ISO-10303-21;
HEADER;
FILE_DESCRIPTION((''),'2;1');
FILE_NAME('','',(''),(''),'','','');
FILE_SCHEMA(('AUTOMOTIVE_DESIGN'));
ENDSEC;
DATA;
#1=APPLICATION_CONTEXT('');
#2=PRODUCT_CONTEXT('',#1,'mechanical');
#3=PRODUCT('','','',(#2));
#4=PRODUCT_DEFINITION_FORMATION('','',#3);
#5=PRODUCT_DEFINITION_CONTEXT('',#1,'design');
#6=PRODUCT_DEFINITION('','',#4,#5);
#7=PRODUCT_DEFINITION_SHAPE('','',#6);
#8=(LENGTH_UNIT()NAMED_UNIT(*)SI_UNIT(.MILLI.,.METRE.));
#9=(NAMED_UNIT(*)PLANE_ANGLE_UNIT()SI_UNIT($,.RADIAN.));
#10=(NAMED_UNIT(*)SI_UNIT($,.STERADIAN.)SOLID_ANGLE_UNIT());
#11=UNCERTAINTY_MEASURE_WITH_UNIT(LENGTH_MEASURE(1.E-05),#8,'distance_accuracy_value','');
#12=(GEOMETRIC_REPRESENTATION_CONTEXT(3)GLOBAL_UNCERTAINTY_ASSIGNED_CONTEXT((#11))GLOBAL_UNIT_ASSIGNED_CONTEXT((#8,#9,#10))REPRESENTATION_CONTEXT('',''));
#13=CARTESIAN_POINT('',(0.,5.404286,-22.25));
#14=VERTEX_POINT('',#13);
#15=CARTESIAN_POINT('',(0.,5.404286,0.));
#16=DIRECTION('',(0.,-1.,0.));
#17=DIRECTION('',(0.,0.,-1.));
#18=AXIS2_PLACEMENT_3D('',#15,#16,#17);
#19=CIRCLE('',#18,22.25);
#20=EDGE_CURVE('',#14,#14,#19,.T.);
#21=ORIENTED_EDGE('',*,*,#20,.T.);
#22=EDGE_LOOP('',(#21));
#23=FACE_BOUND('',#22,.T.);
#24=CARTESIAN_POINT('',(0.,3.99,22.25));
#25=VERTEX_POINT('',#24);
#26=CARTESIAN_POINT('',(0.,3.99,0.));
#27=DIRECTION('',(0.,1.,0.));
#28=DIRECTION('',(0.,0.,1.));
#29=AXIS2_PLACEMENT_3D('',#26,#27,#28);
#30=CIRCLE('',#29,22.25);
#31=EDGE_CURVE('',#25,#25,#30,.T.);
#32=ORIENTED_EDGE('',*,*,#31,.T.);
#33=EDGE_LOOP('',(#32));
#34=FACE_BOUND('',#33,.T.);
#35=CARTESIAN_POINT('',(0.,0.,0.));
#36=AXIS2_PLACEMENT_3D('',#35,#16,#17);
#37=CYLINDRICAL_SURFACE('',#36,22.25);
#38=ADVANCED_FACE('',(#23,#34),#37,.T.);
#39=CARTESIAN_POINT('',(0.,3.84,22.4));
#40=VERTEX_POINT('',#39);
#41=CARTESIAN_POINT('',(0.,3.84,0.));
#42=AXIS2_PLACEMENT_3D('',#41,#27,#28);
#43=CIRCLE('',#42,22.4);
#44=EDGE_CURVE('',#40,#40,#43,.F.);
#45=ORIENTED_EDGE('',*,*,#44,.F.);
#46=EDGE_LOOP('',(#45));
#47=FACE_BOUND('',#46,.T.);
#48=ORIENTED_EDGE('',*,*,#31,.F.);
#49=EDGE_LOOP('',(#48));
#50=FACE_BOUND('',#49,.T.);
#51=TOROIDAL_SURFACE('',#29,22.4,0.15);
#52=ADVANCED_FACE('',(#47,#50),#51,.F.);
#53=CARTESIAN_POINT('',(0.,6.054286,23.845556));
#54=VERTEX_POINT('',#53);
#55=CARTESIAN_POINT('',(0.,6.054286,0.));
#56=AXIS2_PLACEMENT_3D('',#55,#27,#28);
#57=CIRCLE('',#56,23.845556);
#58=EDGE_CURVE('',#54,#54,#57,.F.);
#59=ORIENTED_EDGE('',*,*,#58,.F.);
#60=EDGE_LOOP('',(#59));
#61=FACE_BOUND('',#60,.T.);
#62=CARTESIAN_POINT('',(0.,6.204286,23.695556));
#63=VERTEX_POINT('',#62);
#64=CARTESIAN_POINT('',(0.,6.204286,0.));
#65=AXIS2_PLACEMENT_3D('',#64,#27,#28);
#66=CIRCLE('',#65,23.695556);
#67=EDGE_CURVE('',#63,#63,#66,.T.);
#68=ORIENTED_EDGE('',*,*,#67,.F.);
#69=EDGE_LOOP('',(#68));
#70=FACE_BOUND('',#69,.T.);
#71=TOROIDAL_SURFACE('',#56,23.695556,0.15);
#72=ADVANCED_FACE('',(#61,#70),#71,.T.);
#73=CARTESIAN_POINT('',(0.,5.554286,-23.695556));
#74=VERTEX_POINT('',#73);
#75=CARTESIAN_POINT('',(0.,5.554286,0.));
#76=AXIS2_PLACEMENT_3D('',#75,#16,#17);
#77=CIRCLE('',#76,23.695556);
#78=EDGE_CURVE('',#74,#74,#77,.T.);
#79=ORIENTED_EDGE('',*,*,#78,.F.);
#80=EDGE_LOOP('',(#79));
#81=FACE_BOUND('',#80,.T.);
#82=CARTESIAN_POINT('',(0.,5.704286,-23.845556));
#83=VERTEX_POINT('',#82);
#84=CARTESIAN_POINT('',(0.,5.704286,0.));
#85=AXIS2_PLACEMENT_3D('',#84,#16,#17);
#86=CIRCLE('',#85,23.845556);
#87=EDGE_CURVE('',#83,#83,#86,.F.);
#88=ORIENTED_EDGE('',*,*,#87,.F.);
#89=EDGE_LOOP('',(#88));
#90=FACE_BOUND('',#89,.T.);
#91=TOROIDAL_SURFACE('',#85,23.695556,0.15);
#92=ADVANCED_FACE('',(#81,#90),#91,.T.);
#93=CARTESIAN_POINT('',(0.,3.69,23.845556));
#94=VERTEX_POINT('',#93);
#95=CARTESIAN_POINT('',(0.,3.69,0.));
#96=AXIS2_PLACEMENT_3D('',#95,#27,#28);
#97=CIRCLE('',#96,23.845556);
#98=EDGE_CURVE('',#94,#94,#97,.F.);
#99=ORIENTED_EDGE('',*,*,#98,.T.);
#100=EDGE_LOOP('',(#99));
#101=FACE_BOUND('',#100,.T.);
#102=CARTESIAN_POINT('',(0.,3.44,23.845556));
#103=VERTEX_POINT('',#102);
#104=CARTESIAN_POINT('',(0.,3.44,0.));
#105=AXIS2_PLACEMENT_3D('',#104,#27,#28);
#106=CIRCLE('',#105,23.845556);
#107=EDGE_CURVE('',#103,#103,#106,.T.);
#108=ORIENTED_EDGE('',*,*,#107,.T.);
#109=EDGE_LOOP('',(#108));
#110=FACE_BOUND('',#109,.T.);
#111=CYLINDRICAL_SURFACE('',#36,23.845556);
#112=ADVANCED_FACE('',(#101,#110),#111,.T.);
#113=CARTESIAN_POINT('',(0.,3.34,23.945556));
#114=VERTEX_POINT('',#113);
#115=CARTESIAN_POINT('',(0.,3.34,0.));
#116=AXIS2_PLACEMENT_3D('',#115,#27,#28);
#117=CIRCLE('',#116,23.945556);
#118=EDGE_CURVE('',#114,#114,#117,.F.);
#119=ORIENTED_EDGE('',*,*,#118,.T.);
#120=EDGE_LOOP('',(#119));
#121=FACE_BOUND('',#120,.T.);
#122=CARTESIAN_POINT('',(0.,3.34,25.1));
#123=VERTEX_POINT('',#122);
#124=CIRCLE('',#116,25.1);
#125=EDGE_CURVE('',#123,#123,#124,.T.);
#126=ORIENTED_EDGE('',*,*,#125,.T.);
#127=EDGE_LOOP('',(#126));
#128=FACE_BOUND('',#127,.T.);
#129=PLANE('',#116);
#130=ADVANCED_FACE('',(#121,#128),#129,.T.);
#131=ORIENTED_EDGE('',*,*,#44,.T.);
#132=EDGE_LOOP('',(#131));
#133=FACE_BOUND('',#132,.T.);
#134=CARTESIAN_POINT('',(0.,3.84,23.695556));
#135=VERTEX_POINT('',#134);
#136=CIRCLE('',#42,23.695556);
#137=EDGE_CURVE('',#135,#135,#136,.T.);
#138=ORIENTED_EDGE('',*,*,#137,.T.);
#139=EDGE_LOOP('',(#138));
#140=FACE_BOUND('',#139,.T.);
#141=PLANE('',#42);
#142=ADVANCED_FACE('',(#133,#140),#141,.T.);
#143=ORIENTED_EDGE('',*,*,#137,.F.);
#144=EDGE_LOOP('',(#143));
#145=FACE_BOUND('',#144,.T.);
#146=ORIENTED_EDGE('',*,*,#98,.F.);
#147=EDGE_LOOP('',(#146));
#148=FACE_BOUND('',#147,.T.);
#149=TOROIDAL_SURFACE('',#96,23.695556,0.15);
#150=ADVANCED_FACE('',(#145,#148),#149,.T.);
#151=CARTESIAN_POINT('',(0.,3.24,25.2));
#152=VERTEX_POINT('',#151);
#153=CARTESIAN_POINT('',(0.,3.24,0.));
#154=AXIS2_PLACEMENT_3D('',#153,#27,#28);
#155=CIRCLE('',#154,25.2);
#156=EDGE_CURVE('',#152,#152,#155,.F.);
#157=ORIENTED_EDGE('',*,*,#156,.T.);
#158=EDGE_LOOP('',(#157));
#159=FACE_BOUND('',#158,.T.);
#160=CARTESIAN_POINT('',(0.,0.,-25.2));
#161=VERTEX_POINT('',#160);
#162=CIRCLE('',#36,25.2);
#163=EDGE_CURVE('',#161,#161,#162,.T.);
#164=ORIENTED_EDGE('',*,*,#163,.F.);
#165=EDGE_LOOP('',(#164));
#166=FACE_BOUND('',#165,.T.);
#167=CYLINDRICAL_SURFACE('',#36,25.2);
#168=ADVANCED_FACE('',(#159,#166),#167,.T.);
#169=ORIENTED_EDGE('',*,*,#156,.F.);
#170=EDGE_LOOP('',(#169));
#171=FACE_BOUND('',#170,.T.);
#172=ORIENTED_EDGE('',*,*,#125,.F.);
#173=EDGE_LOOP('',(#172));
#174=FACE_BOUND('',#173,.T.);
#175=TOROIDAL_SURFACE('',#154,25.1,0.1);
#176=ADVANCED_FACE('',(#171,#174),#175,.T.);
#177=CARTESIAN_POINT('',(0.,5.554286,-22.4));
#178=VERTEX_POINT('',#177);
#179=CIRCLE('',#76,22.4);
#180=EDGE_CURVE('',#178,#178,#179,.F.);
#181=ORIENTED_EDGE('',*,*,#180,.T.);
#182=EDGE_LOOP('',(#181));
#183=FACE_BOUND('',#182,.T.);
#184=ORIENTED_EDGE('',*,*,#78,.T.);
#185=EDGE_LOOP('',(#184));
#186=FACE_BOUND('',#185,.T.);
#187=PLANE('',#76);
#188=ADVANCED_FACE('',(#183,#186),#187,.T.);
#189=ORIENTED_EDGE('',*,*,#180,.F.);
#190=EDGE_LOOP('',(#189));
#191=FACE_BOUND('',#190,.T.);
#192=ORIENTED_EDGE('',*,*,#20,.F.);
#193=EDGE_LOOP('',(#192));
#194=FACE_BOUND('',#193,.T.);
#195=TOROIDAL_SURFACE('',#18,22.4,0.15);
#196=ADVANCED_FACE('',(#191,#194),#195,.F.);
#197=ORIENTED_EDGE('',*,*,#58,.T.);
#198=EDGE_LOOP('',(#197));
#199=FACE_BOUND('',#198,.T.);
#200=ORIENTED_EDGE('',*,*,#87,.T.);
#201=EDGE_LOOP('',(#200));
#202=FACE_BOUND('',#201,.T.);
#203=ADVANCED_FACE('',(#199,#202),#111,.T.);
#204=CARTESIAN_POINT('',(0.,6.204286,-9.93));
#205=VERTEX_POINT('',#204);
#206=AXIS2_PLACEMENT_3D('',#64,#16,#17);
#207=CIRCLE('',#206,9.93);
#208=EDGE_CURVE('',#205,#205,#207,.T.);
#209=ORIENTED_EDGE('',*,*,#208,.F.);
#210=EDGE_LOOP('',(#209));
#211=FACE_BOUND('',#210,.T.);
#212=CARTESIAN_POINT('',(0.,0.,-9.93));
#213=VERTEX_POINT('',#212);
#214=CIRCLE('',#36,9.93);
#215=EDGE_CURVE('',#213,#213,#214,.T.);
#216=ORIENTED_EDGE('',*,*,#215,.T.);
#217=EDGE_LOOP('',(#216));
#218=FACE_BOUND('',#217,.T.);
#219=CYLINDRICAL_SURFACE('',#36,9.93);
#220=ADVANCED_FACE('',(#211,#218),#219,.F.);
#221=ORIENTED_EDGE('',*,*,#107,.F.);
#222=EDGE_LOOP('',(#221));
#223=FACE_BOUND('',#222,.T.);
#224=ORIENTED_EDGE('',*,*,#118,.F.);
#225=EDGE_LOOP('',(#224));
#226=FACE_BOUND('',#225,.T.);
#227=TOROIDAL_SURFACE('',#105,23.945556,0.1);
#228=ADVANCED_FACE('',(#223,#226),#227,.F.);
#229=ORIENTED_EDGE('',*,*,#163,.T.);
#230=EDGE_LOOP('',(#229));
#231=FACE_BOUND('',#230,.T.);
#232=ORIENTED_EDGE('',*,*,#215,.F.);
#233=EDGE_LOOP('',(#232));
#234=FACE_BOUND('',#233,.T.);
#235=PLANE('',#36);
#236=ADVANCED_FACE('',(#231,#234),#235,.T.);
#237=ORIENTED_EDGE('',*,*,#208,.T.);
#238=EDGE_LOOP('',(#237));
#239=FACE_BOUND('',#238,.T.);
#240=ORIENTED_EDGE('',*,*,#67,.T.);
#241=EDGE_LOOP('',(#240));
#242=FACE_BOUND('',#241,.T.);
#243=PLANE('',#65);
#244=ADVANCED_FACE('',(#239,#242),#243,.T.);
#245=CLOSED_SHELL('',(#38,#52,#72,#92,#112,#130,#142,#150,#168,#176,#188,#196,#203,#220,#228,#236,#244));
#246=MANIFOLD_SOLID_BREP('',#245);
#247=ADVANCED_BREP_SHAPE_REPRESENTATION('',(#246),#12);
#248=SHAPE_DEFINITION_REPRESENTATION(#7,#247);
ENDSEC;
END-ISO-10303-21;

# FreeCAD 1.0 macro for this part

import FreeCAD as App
import Part
import Sketcher
Q = App.Units.Quantity


def edges_at(feature, points):
    """Names of the edges that pass closest to the given points."""
    edges = feature.Shape.Edges
    near = lambda p: min(range(len(edges)), key=lambda i: edges[i].distToShape(Part.Vertex(*p))[0])
    return sorted({f"Edge{near(p) + 1}" for p in points})


def add_polygon(sketch, points):
    """Adds a closed chain of lines whose ends are joined by coincident constraints."""
    first, n = sketch.GeometryCount, len(points)
    for a, b in zip(points, points[1:] + points[:1]):
        sketch.addGeometry(Part.LineSegment(App.Vector(*a, 0), App.Vector(*b, 0)), False)
    for i in range(n):
        sketch.addConstraint(Sketcher.Constraint("Coincident", first + i, 2, first + (i + 1) % n, 1))

doc = App.newDocument("Part")
body = doc.addObject("PartDesign::Body", "Body")

# Sketch on XY plane
sketch1 = doc.addObject("Sketcher::SketchObject", "Sketch")
body.addObject(sketch1)
sketch1.AttachmentSupport = (doc.XY_Plane, [""])
sketch1.MapMode = "FlatFace"
add_polygon(sketch1, [(9.9, 6.2), (9.9, 0), (25.2, 0), (25.2, 3.3), (23.8, 3.3), (23.8, 3.8), (22.2, 3.8), (22.2, 5.6), (23.8, 5.6), (23.8, 6.2)])  # lines 0-9
sketch1.addConstraint(Sketcher.Constraint("Vertical", 0))
sketch1.addConstraint(Sketcher.Constraint("Horizontal", 1))
sketch1.addConstraint(Sketcher.Constraint("Vertical", 2))
sketch1.addConstraint(Sketcher.Constraint("Horizontal", 3))
sketch1.addConstraint(Sketcher.Constraint("Vertical", 4))
sketch1.addConstraint(Sketcher.Constraint("Horizontal", 5))
sketch1.addConstraint(Sketcher.Constraint("Vertical", 6))
sketch1.addConstraint(Sketcher.Constraint("Horizontal", 7))
sketch1.addConstraint(Sketcher.Constraint("Vertical", 8))
sketch1.addConstraint(Sketcher.Constraint("Horizontal", 9))
sketch1.addConstraint(Sketcher.Constraint("PointOnObject", 0, 2, -1))
sketch1.addConstraint(Sketcher.Constraint("Vertical", 4, 2, 7, 2))
sketch1.addConstraint(Sketcher.Constraint("DistanceY", 4, 1, 4, 2, Q("0.5 mm")))
sketch1.addConstraint(Sketcher.Constraint("DistanceX", 1, 1, 1, 2, Q("15.27 mm")))
sketch1.addConstraint(Sketcher.Constraint("DistanceY", 2, 1, 2, 2, Q("3.34 mm")))
sketch1.addConstraint(Sketcher.Constraint("DistanceY", 8, 1, 8, 2, Q("0.65 mm")))
sketch1.addConstraint(Sketcher.Constraint("DistanceX", -1, 1, 1, 2, Q("25.2 mm")))
sketch1.addConstraint(Sketcher.Constraint("DistanceX", -1, 1, 5, 2, Q("22.25 mm")))
sketch1.addConstraint(Sketcher.Constraint("DistanceX", 3, 2, 3, 1, Q("1.354444 mm")))
sketch1.addConstraint(Sketcher.Constraint("DistanceY", 0, 2, 0, 1, Q("6.204286 mm")))
revolution = doc.addObject("PartDesign::Revolution", "Revolution")
body.addObject(revolution)
revolution.Profile = sketch1
revolution.ReferenceAxis = (sketch1, ["V_Axis"])
revolution.Angle = 360
doc.recompute()

fillet = doc.addObject("PartDesign::Fillet", "Fillet")
body.addObject(fillet)
fillet.Base = (revolution, edges_at(revolution, [(-23.846, 6.204, 0)]))
fillet.Radius = 0.15
doc.recompute()

fillet2 = doc.addObject("PartDesign::Fillet", "Fillet001")
body.addObject(fillet2)
fillet2.Base = (fillet, edges_at(fillet, [(-23.846, 5.554, 0), (-23.846, 3.84, 0)]))
fillet2.Radius = 0.15
doc.recompute()

fillet3 = doc.addObject("PartDesign::Fillet", "Fillet002")
body.addObject(fillet3)
fillet3.Base = (fillet2, edges_at(fillet2, [(-23.846, 3.34, 0), (-25.2, 3.34, 0)]))
fillet3.Radius = 0.1
doc.recompute()

fillet4 = doc.addObject("PartDesign::Fillet", "Fillet003")
body.addObject(fillet4)
fillet4.Base = (fillet3, edges_at(fillet3, [(-22.25, 3.84, 0)]))
fillet4.Radius = 0.15
doc.recompute()

fillet5 = doc.addObject("PartDesign::Fillet", "Fillet004")
body.addObject(fillet5)
fillet5.Base = (fillet4, edges_at(fillet4, [(-22.25, 5.554, 0)]))
fillet5.Radius = 0.15

doc.recompute()
